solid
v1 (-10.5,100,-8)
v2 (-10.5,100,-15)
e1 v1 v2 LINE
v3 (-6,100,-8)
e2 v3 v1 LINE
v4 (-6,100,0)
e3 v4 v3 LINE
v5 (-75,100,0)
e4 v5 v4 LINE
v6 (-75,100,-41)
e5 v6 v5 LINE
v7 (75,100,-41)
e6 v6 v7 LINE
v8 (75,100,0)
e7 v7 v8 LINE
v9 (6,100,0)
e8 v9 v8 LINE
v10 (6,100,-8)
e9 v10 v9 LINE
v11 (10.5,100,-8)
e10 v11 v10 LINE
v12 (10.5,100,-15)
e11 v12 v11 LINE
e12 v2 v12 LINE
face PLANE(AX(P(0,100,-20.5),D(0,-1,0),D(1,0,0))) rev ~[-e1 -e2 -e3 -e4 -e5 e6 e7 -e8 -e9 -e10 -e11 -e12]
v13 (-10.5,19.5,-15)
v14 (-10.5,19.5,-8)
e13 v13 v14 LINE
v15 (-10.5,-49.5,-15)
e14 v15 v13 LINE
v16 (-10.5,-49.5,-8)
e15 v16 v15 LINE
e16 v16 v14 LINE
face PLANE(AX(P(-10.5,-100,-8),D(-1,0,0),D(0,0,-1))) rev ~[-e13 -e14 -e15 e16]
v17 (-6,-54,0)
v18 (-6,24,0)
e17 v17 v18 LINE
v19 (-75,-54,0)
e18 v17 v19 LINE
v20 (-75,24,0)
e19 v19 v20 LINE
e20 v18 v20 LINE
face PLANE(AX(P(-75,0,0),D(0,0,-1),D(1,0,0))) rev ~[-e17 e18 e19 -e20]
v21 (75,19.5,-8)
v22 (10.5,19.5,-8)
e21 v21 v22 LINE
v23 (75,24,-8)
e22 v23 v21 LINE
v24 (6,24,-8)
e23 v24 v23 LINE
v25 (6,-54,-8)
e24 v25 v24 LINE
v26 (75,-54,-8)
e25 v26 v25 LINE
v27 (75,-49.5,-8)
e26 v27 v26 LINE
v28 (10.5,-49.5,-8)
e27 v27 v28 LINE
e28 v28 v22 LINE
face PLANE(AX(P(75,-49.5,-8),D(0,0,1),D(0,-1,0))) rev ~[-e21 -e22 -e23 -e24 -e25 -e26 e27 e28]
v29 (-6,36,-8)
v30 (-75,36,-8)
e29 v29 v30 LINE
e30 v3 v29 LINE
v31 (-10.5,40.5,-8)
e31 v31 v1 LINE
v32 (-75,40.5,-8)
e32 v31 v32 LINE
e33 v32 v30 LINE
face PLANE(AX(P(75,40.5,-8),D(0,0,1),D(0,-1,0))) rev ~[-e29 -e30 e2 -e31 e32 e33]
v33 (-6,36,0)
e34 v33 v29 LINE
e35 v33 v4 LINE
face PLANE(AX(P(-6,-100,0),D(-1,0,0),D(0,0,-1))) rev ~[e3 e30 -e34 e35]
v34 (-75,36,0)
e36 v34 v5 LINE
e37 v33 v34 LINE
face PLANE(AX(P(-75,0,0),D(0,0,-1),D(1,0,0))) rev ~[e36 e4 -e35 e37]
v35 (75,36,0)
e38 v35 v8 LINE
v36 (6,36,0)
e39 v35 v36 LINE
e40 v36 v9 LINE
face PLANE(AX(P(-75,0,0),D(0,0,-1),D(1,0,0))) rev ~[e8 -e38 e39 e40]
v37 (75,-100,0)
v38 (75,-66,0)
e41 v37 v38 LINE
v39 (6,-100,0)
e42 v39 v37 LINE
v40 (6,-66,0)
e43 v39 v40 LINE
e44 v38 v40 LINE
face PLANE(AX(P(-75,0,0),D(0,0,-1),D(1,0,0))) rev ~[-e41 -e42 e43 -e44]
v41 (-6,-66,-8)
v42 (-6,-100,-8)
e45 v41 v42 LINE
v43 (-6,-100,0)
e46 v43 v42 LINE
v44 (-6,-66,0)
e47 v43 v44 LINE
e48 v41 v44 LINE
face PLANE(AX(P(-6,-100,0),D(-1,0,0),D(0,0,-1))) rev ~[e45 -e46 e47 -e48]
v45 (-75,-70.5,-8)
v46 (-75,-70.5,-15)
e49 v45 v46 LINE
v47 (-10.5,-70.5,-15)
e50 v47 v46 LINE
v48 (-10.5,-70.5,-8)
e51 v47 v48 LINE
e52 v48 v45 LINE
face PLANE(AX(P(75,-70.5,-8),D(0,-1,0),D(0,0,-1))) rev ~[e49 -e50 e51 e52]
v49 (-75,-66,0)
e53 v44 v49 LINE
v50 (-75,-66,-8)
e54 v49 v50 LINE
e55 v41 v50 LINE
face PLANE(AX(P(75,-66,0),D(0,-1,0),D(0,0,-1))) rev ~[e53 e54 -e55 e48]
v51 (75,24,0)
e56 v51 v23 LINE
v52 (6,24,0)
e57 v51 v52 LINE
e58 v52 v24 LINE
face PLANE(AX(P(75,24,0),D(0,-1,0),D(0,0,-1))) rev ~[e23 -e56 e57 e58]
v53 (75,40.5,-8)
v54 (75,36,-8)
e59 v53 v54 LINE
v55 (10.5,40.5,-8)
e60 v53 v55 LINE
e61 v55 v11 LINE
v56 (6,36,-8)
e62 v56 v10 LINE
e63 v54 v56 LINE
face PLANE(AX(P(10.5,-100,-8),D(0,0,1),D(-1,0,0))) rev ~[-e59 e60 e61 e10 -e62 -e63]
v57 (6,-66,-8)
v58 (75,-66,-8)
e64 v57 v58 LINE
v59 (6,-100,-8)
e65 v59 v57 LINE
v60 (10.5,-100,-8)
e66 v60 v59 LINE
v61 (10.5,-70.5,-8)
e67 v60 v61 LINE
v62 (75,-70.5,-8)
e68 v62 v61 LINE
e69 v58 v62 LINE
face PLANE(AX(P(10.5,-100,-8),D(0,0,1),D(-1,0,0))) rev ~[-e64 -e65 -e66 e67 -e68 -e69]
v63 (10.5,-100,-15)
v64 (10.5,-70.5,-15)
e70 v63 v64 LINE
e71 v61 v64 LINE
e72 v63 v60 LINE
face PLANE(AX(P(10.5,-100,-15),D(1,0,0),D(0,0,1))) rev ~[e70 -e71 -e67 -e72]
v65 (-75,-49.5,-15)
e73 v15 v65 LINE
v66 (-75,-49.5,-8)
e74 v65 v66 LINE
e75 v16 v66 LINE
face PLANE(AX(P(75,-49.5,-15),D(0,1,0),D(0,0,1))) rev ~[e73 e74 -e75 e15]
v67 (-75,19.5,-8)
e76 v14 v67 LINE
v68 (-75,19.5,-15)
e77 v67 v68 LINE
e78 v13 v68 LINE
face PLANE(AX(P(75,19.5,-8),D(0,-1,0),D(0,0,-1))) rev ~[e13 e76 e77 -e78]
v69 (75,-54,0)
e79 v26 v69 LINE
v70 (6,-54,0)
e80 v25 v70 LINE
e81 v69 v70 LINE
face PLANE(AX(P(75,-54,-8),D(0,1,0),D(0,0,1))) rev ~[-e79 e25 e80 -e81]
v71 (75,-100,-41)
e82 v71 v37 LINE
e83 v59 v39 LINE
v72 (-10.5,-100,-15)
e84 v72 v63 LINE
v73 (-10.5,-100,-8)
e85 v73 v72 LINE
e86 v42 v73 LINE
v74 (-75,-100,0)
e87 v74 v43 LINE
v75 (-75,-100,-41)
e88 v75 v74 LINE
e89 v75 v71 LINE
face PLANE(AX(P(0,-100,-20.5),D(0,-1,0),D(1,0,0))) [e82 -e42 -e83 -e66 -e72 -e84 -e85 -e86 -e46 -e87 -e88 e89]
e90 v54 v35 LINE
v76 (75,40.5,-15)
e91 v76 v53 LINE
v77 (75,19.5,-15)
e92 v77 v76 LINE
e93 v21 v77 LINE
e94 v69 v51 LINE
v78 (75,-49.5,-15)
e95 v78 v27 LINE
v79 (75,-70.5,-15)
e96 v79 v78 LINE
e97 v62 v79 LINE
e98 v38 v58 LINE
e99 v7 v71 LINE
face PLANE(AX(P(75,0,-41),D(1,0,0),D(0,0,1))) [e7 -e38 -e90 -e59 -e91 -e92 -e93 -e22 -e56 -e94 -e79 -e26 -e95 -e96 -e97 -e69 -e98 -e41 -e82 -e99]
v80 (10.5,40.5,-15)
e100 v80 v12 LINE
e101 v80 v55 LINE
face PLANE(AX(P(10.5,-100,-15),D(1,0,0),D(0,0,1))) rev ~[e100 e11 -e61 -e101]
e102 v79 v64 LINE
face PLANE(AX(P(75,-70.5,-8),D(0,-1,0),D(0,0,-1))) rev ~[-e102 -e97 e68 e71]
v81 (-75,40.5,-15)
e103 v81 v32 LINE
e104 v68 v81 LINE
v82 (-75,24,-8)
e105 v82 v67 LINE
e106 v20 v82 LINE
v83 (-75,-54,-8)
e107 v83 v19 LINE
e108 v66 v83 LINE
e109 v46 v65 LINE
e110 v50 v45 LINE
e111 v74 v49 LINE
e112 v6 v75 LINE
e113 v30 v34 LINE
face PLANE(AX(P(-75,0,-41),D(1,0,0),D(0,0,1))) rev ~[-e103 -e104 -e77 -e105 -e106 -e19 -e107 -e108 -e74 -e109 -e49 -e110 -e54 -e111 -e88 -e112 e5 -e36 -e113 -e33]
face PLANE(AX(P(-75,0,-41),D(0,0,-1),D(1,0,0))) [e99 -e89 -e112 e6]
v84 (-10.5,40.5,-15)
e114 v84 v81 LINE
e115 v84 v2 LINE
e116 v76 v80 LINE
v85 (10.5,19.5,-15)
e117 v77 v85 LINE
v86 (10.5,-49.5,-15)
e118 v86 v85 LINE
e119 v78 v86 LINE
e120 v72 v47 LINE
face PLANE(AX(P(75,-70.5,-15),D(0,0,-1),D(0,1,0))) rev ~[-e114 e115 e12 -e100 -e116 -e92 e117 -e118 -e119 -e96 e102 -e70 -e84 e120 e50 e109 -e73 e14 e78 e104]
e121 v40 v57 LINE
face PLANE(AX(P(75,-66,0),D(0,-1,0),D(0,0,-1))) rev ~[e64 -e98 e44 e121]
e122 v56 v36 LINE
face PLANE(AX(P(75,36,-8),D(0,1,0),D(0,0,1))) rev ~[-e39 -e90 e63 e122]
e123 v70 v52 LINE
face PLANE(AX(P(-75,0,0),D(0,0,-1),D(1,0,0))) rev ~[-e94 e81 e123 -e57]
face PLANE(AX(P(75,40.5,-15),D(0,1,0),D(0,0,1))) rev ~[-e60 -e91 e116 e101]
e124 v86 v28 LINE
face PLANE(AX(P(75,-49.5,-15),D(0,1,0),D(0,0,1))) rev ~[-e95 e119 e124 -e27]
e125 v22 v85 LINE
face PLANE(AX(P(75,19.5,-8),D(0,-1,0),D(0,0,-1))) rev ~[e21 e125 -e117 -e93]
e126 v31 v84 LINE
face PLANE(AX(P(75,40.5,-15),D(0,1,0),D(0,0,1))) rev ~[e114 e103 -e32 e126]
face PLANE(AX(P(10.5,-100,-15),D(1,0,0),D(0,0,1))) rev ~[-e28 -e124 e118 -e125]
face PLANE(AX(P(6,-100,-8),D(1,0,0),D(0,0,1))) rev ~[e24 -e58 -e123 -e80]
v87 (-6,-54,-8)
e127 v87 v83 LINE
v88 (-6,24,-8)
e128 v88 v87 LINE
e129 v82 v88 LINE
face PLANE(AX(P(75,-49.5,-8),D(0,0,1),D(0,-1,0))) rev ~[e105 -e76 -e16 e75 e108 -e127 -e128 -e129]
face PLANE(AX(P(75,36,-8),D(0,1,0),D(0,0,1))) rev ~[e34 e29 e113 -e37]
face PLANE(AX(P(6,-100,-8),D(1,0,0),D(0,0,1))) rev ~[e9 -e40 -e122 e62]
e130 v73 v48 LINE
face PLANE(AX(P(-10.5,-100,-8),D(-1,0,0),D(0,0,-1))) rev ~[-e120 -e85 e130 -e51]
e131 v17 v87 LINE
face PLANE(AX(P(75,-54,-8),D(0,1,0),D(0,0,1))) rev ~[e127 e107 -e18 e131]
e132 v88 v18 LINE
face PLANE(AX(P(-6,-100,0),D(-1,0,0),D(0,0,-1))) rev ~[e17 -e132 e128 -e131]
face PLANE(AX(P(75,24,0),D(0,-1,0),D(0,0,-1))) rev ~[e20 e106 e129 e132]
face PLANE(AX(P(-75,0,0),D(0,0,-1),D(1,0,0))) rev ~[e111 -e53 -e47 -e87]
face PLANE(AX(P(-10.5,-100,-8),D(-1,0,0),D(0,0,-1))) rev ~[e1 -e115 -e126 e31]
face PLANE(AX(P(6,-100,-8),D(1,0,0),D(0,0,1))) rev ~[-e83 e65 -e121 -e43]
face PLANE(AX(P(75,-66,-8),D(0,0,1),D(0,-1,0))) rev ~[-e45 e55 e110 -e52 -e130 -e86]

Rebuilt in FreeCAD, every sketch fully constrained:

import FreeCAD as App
import Part
import Sketcher
from FreeCAD import Vector


def add_polygon(sketch, points):
    """Adds a closed chain of lines whose ends are joined by coincident constraints."""
    first, n = sketch.GeometryCount, len(points)
    for a, b in zip(points, points[1:] + points[:1]):
        sketch.addGeometry(Part.LineSegment(App.Vector(*a, 0), App.Vector(*b, 0)), False)
    for i in range(n):
        sketch.addConstraint(Sketcher.Constraint("Coincident", first + i, 2, first + (i + 1) % n, 1))

doc = App.newDocument("Part")
body = doc.addObject("PartDesign::Body", "Body")

# Sketch on XZ plane
sketch1 = doc.addObject("Sketcher::SketchObject", "Sketch")
body.addObject(sketch1)
sketch1.AttachmentSupport = (doc.XZ_Plane, [""])
sketch1.MapMode = "FlatFace"
add_polygon(sketch1, [(-75, 0), (-75, -41), (75, -41), (75, 0)])  # lines 0-3
sketch1.addConstraint(Sketcher.Constraint("Vertical", 0))
sketch1.addConstraint(Sketcher.Constraint("Horizontal", 1))
sketch1.addConstraint(Sketcher.Constraint("Vertical", 2))
sketch1.addConstraint(Sketcher.Constraint("Horizontal", 3))
sketch1.addConstraint(Sketcher.Constraint("Symmetric", 2, 2, 3, 2, -1, 1))
sketch1.addConstraint(Sketcher.Constraint("DistanceX", 1, 1, 1, 2, 150.0))
sketch1.addConstraint(Sketcher.Constraint("DistanceY", 0, 2, 0, 1, 41.0))
pad1 = doc.addObject("PartDesign::Pad", "Pad")
body.addObject(pad1)
pad1.Profile = sketch1
pad1.Length = 200
pad1.Midplane = True

# Sketch on XZ plane
sketch2 = doc.addObject("Sketcher::SketchObject", "Sketch001")
body.addObject(sketch2)
sketch2.AttachmentSupport = (doc.XZ_Plane, [""])
sketch2.MapMode = "FlatFace"
sketch2.AttachmentOffset = App.Placement(Vector(0, 0, 100), App.Rotation())
add_polygon(sketch2, [(6, 0), (-6, 0), (-6, -8), (-10.5, -8), (-10.5, -15), (10.5, -15), (10.5, -8), (6, -8)])  # lines 0-7
sketch2.addConstraint(Sketcher.Constraint("Horizontal", 0))
sketch2.addConstraint(Sketcher.Constraint("Vertical", 1))
sketch2.addConstraint(Sketcher.Constraint("Horizontal", 2))
sketch2.addConstraint(Sketcher.Constraint("Vertical", 3))
sketch2.addConstraint(Sketcher.Constraint("Horizontal", 4))
sketch2.addConstraint(Sketcher.Constraint("Vertical", 5))
sketch2.addConstraint(Sketcher.Constraint("Horizontal", 6))
sketch2.addConstraint(Sketcher.Constraint("Vertical", 7))
sketch2.addConstraint(Sketcher.Constraint("Symmetric", 0, 2, 7, 2, -1, 1))
sketch2.addConstraint(Sketcher.Constraint("Symmetric", 2, 2, 5, 2, -2))
sketch2.addConstraint(Sketcher.Constraint("DistanceX", 0, 2, 0, 1, 12.0))
sketch2.addConstraint(Sketcher.Constraint("DistanceX", 4, 1, 4, 2, 21.0))
sketch2.addConstraint(Sketcher.Constraint("DistanceY", 1, 2, 1, 1, 8.0))
sketch2.addConstraint(Sketcher.Constraint("DistanceY", 3, 2, 3, 1, 7.0))
pocket1 = doc.addObject("PartDesign::Pocket", "Pocket")
body.addObject(pocket1)
pocket1.Profile = sketch2
pocket1.Type = "ThroughAll"

# Sketch on YZ plane
sketch3 = doc.addObject("Sketcher::SketchObject", "Sketch002")
body.addObject(sketch3)
sketch3.AttachmentSupport = (doc.YZ_Plane, [""])
sketch3.MapMode = "FlatFace"
sketch3.AttachmentOffset = App.Placement(Vector(0, 0, 75), App.Rotation())
add_polygon(sketch3, [(-54, 0), (-66, 0), (-66, -8), (-70.5, -8), (-70.5, -15), (-49.5, -15), (-49.5, -8), (-54, -8)])  # lines 0-7
add_polygon(sketch3, [(36, 0), (24, 0), (24, -8), (19.5, -8), (19.5, -15), (40.5, -15), (40.5, -8), (36, -8)])  # lines 8-15
sketch3.addConstraint(Sketcher.Constraint("Horizontal", 0))
sketch3.addConstraint(Sketcher.Constraint("Vertical", 1))
sketch3.addConstraint(Sketcher.Constraint("Horizontal", 2))
sketch3.addConstraint(Sketcher.Constraint("Vertical", 3))
sketch3.addConstraint(Sketcher.Constraint("Horizontal", 4))
sketch3.addConstraint(Sketcher.Constraint("Vertical", 5))
sketch3.addConstraint(Sketcher.Constraint("Horizontal", 6))
sketch3.addConstraint(Sketcher.Constraint("Vertical", 7))
sketch3.addConstraint(Sketcher.Constraint("Horizontal", 8))
sketch3.addConstraint(Sketcher.Constraint("Vertical", 9))
sketch3.addConstraint(Sketcher.Constraint("Horizontal", 10))
sketch3.addConstraint(Sketcher.Constraint("Vertical", 11))
sketch3.addConstraint(Sketcher.Constraint("Horizontal", 12))
sketch3.addConstraint(Sketcher.Constraint("Vertical", 13))
sketch3.addConstraint(Sketcher.Constraint("Horizontal", 14))
sketch3.addConstraint(Sketcher.Constraint("Vertical", 15))
sketch3.addConstraint(Sketcher.Constraint("PointOnObject", 0, 2, -1))
sketch3.addConstraint(Sketcher.Constraint("PointOnObject", 8, 2, -1))
sketch3.addConstraint(Sketcher.Constraint("Horizontal", 2, 2, 5, 2))
sketch3.addConstraint(Sketcher.Constraint("Horizontal", 6, 2, 9, 2))
sketch3.addConstraint(Sketcher.Constraint("Horizontal", 4, 2, 11, 2))
sketch3.addConstraint(Sketcher.Constraint("Horizontal", 10, 2, 13, 2))
sketch3.addConstraint(Sketcher.Constraint("Equal", 2, 6))
sketch3.addConstraint(Sketcher.Constraint("Equal", 0, 8))
sketch3.addConstraint(Sketcher.Constraint("Equal", 6, 10))
sketch3.addConstraint(Sketcher.Constraint("Equal", 4, 12))
sketch3.addConstraint(Sketcher.Constraint("DistanceX", 0, 2, 0, 1, 12.0))
sketch3.addConstraint(Sketcher.Constraint("DistanceX", 4, 1, 4, 2, 21.0))
sketch3.addConstraint(Sketcher.Constraint("DistanceY", 1, 2, 1, 1, 8.0))
sketch3.addConstraint(Sketcher.Constraint("DistanceY", 3, 2, 3, 1, 7.0))
sketch3.addConstraint(Sketcher.Constraint("DistanceX", 0, 2, -1, 1, 66.0))
sketch3.addConstraint(Sketcher.Constraint("DistanceX", -1, 1, 8, 2, 24.0))
pocket2 = doc.addObject("PartDesign::Pocket", "Pocket001")
body.addObject(pocket2)
pocket2.Profile = sketch3
pocket2.Type = "ThroughAll"

doc.recompute()
